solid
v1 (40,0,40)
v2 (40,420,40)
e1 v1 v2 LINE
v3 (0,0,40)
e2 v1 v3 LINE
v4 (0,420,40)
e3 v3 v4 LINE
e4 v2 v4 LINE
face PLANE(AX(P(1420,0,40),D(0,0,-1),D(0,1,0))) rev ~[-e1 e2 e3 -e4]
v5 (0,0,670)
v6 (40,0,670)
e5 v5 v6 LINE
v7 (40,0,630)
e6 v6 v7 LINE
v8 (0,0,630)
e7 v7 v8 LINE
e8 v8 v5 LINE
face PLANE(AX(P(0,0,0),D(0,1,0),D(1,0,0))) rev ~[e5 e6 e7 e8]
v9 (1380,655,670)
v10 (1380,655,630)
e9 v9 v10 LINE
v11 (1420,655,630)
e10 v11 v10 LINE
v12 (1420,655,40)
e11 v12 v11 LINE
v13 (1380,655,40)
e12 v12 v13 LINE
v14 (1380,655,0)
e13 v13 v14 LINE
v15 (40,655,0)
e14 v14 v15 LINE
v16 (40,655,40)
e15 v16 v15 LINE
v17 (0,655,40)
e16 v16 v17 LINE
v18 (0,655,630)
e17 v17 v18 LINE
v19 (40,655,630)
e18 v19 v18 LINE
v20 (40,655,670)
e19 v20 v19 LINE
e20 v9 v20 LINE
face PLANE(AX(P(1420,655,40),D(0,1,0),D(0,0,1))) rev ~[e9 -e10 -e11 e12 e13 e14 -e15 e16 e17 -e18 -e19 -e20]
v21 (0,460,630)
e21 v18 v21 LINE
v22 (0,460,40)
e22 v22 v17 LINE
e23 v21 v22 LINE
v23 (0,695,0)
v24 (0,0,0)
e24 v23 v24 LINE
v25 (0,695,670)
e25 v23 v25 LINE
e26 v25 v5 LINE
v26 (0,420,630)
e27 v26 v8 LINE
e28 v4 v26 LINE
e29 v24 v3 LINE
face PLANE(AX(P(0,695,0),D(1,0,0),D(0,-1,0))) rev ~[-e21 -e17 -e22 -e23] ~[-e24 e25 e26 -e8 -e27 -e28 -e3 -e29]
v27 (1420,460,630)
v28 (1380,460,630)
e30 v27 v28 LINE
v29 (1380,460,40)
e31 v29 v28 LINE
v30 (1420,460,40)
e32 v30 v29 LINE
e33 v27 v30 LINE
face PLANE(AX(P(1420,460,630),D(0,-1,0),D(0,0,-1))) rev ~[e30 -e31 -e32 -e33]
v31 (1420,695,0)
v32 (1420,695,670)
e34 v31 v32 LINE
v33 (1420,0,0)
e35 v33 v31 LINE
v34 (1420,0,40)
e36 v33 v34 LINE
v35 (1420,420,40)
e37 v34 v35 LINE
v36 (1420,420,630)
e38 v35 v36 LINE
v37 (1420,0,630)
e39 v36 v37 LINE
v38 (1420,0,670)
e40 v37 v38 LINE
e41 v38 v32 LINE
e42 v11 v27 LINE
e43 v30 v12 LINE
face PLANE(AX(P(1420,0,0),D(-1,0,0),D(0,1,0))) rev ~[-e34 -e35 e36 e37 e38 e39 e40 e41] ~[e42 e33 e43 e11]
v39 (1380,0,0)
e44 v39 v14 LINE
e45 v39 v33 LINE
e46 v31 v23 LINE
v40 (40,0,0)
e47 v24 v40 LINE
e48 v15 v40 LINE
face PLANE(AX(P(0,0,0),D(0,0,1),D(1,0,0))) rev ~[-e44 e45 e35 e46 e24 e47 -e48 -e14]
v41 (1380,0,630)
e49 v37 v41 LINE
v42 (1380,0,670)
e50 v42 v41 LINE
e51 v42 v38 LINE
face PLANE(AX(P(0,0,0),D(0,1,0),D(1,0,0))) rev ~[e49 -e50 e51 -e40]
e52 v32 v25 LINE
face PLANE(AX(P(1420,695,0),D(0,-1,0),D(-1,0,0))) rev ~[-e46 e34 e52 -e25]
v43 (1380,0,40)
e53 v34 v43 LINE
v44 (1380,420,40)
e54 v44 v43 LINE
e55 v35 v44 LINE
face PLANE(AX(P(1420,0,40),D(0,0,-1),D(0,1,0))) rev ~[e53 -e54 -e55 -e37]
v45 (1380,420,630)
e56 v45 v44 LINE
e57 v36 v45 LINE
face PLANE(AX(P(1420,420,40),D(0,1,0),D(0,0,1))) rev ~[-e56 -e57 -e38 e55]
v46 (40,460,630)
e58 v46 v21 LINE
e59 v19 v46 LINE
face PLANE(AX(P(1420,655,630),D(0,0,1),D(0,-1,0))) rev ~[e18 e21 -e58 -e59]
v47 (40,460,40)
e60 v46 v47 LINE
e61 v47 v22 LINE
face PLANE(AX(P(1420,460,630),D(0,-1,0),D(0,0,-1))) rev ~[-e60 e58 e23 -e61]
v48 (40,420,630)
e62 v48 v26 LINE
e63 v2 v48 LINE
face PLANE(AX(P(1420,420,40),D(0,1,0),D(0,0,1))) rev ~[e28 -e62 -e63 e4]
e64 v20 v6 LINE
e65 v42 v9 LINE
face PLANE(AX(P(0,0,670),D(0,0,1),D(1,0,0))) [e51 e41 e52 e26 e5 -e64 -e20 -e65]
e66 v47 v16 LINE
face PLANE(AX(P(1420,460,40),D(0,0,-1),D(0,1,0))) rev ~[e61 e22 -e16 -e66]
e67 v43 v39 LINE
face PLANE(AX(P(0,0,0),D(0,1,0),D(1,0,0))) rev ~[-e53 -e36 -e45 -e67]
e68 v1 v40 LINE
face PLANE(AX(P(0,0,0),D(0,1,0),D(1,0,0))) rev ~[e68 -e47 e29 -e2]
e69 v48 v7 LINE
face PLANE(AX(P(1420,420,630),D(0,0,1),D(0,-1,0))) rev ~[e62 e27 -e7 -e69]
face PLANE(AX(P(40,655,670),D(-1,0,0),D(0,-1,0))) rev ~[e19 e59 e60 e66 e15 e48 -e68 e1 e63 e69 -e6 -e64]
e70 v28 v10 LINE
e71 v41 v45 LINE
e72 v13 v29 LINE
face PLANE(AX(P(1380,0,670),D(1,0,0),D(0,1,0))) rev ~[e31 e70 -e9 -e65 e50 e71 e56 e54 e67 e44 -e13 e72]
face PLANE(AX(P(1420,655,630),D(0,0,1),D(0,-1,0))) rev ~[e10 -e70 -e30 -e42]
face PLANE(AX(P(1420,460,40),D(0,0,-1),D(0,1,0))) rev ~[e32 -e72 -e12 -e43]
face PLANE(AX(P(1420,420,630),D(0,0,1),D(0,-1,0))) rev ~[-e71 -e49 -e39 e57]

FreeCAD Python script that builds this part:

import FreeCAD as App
import Part
import Sketcher

V = App.Vector
Q = App.Units.Quantity

doc = App.newDocument("Part")
body = doc.addObject("PartDesign::Body", "Body")

sketch1 = body.newObject("Sketcher::SketchObject", "Sketch")
sketch1.AttachmentSupport = (doc.getObject("XY_Plane"), [""])
sketch1.MapMode = "FlatFace"
sketch1.addGeometry(Part.LineSegment(V(0, 695, 0), V(0, 0, 0)), False)
sketch1.addGeometry(Part.LineSegment(V(0, 0, 0), V(1420, 0, 0)), False)
sketch1.addGeometry(Part.LineSegment(V(1420, 0, 0), V(1420, 695, 0)), False)
sketch1.addGeometry(Part.LineSegment(V(1420, 695, 0), V(0, 695, 0)), False)
sketch1.addConstraint(Sketcher.Constraint("Coincident", 0, 2, 1, 1))
sketch1.addConstraint(Sketcher.Constraint("Coincident", 1, 2, 2, 1))
sketch1.addConstraint(Sketcher.Constraint("Coincident", 2, 2, 3, 1))
sketch1.addConstraint(Sketcher.Constraint("Coincident", 3, 2, 0, 1))
sketch1.addConstraint(Sketcher.Constraint("Vertical", 0))
sketch1.addConstraint(Sketcher.Constraint("Horizontal", 1))
sketch1.addConstraint(Sketcher.Constraint("Vertical", 2))
sketch1.addConstraint(Sketcher.Constraint("Horizontal", 3))
sketch1.addConstraint(Sketcher.Constraint("Coincident", 0, 2, -1, 1))
sketch1.addConstraint(Sketcher.Constraint("DistanceX", 1, 1, 1, 2, Q("1420 mm")))
sketch1.addConstraint(Sketcher.Constraint("DistanceY", 0, 2, 0, 1, Q("695 mm")))
pad1 = body.newObject("PartDesign::Pad", "Pad")
pad1.Profile = sketch1
pad1.Length = 670

sketch2 = body.newObject("Sketcher::SketchObject", "Sketch001")
sketch2.AttachmentSupport = (doc.getObject("YZ_Plane"), [""])
sketch2.MapMode = "FlatFace"
sketch2.AttachmentOffset = App.Placement(V(0, 0, 1420), App.Rotation())
sketch2.addGeometry(Part.LineSegment(V(420, 630, 0), V(0, 630, 0)), False)
sketch2.addGeometry(Part.LineSegment(V(0, 630, 0), V(0, 40, 0)), False)
sketch2.addGeometry(Part.LineSegment(V(0, 40, 0), V(420, 40, 0)), False)
sketch2.addGeometry(Part.LineSegment(V(420, 40, 0), V(420, 630, 0)), False)
sketch2.addConstraint(Sketcher.Constraint("Coincident", 0, 2, 1, 1))
sketch2.addConstraint(Sketcher.Constraint("Coincident", 1, 2, 2, 1))
sketch2.addConstraint(Sketcher.Constraint("Coincident", 2, 2, 3, 1))
sketch2.addConstraint(Sketcher.Constraint("Coincident", 3, 2, 0, 1))
sketch2.addConstraint(Sketcher.Constraint("Horizontal", 0))
sketch2.addConstraint(Sketcher.Constraint("Vertical", 1))
sketch2.addConstraint(Sketcher.Constraint("Horizontal", 2))
sketch2.addConstraint(Sketcher.Constraint("Vertical", 3))
sketch2.addConstraint(Sketcher.Constraint("PointOnObject", 0, 2, -2))
sketch2.addConstraint(Sketcher.Constraint("DistanceX", 0, 2, 0, 1, Q("420 mm")))
sketch2.addConstraint(Sketcher.Constraint("DistanceY", -1, 1, 1, 2, Q("40 mm")))
sketch2.addConstraint(Sketcher.Constraint("DistanceY", 1, 2, 1, 1, Q("590 mm")))
pocket1 = body.newObject("PartDesign::Pocket", "Pocket")
pocket1.Profile = sketch2
pocket1.Length = 2000

sketch3 = body.newObject("Sketcher::SketchObject", "Sketch002")
sketch3.AttachmentSupport = (doc.getObject("YZ_Plane"), [""])
sketch3.MapMode = "FlatFace"
sketch3.AttachmentOffset = App.Placement(V(0, 0, 1420), App.Rotation())
sketch3.addGeometry(Part.LineSegment(V(655, 630, 0), V(460, 630, 0)), False)
sketch3.addGeometry(Part.LineSegment(V(460, 630, 0), V(460, 40, 0)), False)
sketch3.addGeometry(Part.LineSegment(V(460, 40, 0), V(655, 40, 0)), False)
sketch3.addGeometry(Part.LineSegment(V(655, 40, 0), V(655, 630, 0)), False)
sketch3.addConstraint(Sketcher.Constraint("Coincident", 0, 2, 1, 1))
sketch3.addConstraint(Sketcher.Constraint("Coincident", 1, 2, 2, 1))
sketch3.addConstraint(Sketcher.Constraint("Coincident", 2, 2, 3, 1))
sketch3.addConstraint(Sketcher.Constraint("Coincident", 3, 2, 0, 1))
sketch3.addConstraint(Sketcher.Constraint("Horizontal", 0))
sketch3.addConstraint(Sketcher.Constraint("Vertical", 1))
sketch3.addConstraint(Sketcher.Constraint("Horizontal", 2))
sketch3.addConstraint(Sketcher.Constraint("Vertical", 3))
sketch3.addConstraint(Sketcher.Constraint("DistanceY", -1, 1, 1, 2, Q("40 mm")))
sketch3.addConstraint(Sketcher.Constraint("DistanceX", 0, 2, 0, 1, Q("195 mm")))
sketch3.addConstraint(Sketcher.Constraint("DistanceY", 1, 2, 1, 1, Q("590 mm")))
sketch3.addConstraint(Sketcher.Constraint("DistanceX", -1, 1, 0, 2, Q("460 mm")))
pocket2 = body.newObject("PartDesign::Pocket", "Pocket001")
pocket2.Profile = sketch3
pocket2.Length = 2000

sketch4 = body.newObject("Sketcher::SketchObject", "Sketch003")
sketch4.AttachmentSupport = (doc.getObject("XY_Plane"), [""])
sketch4.MapMode = "FlatFace"
sketch4.AttachmentOffset = App.Placement(V(0, 0, 670), App.Rotation())
sketch4.addGeometry(Part.LineSegment(V(40, 655, 0), V(40, 0, 0)), False)
sketch4.addGeometry(Part.LineSegment(V(40, 0, 0), V(1380, 0, 0)), False)
sketch4.addGeometry(Part.LineSegment(V(1380, 0, 0), V(1380, 655, 0)), False)
sketch4.addGeometry(Part.LineSegment(V(1380, 655, 0), V(40, 655, 0)), False)
sketch4.addConstraint(Sketcher.Constraint("Coincident", 0, 2, 1, 1))
sketch4.addConstraint(Sketcher.Constraint("Coincident", 1, 2, 2, 1))
sketch4.addConstraint(Sketcher.Constraint("Coincident", 2, 2, 3, 1))
sketch4.addConstraint(Sketcher.Constraint("Coincident", 3, 2, 0, 1))
sketch4.addConstraint(Sketcher.Constraint("Vertical", 0))
sketch4.addConstraint(Sketcher.Constraint("Horizontal", 1))
sketch4.addConstraint(Sketcher.Constraint("Vertical", 2))
sketch4.addConstraint(Sketcher.Constraint("Horizontal", 3))
sketch4.addConstraint(Sketcher.Constraint("PointOnObject", 0, 2, -1))
sketch4.addConstraint(Sketcher.Constraint("DistanceX", -1, 1, 0, 2, Q("40 mm")))
sketch4.addConstraint(Sketcher.Constraint("DistanceX", 1, 1, 1, 2, Q("1340 mm")))
sketch4.addConstraint(Sketcher.Constraint("DistanceY", 0, 2, 0, 1, Q("655 mm")))
pocket3 = body.newObject("PartDesign::Pocket", "Pocket002")
pocket3.Profile = sketch4
pocket3.Length = 1000

doc.recompute()
